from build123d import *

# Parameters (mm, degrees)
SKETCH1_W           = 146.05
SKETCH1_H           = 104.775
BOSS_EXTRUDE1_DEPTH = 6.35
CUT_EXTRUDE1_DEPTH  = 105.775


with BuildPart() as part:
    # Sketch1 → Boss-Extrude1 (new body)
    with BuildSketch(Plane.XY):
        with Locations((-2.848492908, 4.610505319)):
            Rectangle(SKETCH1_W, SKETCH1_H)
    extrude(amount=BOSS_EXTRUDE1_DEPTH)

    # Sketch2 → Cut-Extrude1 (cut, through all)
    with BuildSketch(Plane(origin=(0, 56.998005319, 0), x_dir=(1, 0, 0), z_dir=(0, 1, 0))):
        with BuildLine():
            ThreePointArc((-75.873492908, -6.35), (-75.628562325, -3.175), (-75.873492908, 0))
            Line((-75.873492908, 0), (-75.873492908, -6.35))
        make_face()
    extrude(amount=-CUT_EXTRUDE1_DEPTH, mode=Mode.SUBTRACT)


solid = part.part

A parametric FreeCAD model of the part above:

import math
import FreeCAD as App
import Part
import Sketcher

V = App.Vector
Q = App.Units.Quantity


def add_polygon(sketch, points):
    """Adds a closed chain of lines whose ends are joined by coincident constraints."""
    first, n = sketch.GeometryCount, len(points)
    for a, b in zip(points, points[1:] + points[:1]):
        sketch.addGeometry(Part.LineSegment(App.Vector(*a, 0), App.Vector(*b, 0)), False)
    for i in range(n):
        sketch.addConstraint(Sketcher.Constraint("Coincident", first + i, 2, first + (i + 1) % n, 1))

doc = App.newDocument("Part")
body = doc.addObject("PartDesign::Body", "Body")

sketch1 = body.newObject("Sketcher::SketchObject", "Sketch")
sketch1.AttachmentSupport = (doc.getObject("XY_Plane"), [""])
sketch1.MapMode = "FlatFace"
add_polygon(sketch1, [(-75.873493, 56.998005), (-75.873493, -47.776995), (70.176507, -47.776995), (70.176507, 56.998005)])
sketch1.addConstraint(Sketcher.Constraint("Vertical", 0))
sketch1.addConstraint(Sketcher.Constraint("Horizontal", 1))
sketch1.addConstraint(Sketcher.Constraint("Vertical", 2))
sketch1.addConstraint(Sketcher.Constraint("Horizontal", 3))
sketch1.addConstraint(Sketcher.Constraint("DistanceX", 1, 1, 1, 2, Q("5.75 in")))
sketch1.addConstraint(Sketcher.Constraint("DistanceY", 0, 2, 0, 1, Q("4.125 in")))
sketch1.addConstraint(Sketcher.Constraint("DistanceX", 0, 2, -1, 1, Q("75.873493 mm")))
sketch1.addConstraint(Sketcher.Constraint("DistanceY", 0, 2, -1, 1, Q("47.776995 mm")))
pad1 = body.newObject("PartDesign::Pad", "Pad")
pad1.Profile = sketch1
pad1.Length = Q("0.25 in")

sketch2 = body.newObject("Sketcher::SketchObject", "Sketch001")
sketch2.AttachmentSupport = (doc.getObject("XZ_Plane"), [""])
sketch2.MapMode = "FlatFace"
sketch2.AttachmentOffset = App.Placement(V(0, 0, -56.998005), App.Rotation())
sketch2.addGeometry(Part.ArcOfCircle(Part.Circle(V(-96.329562, 3.175, 0), V(0, 0, 1), 20.701), math.radians(-8.822519), math.radians(8.822519)), False)
sketch2.addGeometry(Part.LineSegment(V(-75.873493, 0, 0), V(-75.873493, 6.35, 0)), False)
sketch2.addConstraint(Sketcher.Constraint("Coincident", 0, 1, 1, 1))
sketch2.addConstraint(Sketcher.Constraint("Coincident", 1, 2, 0, 2))
sketch2.addConstraint(Sketcher.Constraint("Vertical", 1))
sketch2.addConstraint(Sketcher.Constraint("PointOnObject", 0, 1, -1))
sketch2.addConstraint(Sketcher.Constraint("Radius", 0, Q("0.815 in")))
sketch2.addConstraint(Sketcher.Constraint("DistanceY", 1, 1, 1, 2, Q("0.25 in")))
sketch2.addConstraint(Sketcher.Constraint("DistanceX", 0, 3, -1, 1, Q("96.329562 mm")))
pocket1 = body.newObject("PartDesign::Pocket", "Pocket")
pocket1.Profile = sketch2
pocket1.Type = "ThroughAll"
pocket1.Reversed = True

doc.recompute()
